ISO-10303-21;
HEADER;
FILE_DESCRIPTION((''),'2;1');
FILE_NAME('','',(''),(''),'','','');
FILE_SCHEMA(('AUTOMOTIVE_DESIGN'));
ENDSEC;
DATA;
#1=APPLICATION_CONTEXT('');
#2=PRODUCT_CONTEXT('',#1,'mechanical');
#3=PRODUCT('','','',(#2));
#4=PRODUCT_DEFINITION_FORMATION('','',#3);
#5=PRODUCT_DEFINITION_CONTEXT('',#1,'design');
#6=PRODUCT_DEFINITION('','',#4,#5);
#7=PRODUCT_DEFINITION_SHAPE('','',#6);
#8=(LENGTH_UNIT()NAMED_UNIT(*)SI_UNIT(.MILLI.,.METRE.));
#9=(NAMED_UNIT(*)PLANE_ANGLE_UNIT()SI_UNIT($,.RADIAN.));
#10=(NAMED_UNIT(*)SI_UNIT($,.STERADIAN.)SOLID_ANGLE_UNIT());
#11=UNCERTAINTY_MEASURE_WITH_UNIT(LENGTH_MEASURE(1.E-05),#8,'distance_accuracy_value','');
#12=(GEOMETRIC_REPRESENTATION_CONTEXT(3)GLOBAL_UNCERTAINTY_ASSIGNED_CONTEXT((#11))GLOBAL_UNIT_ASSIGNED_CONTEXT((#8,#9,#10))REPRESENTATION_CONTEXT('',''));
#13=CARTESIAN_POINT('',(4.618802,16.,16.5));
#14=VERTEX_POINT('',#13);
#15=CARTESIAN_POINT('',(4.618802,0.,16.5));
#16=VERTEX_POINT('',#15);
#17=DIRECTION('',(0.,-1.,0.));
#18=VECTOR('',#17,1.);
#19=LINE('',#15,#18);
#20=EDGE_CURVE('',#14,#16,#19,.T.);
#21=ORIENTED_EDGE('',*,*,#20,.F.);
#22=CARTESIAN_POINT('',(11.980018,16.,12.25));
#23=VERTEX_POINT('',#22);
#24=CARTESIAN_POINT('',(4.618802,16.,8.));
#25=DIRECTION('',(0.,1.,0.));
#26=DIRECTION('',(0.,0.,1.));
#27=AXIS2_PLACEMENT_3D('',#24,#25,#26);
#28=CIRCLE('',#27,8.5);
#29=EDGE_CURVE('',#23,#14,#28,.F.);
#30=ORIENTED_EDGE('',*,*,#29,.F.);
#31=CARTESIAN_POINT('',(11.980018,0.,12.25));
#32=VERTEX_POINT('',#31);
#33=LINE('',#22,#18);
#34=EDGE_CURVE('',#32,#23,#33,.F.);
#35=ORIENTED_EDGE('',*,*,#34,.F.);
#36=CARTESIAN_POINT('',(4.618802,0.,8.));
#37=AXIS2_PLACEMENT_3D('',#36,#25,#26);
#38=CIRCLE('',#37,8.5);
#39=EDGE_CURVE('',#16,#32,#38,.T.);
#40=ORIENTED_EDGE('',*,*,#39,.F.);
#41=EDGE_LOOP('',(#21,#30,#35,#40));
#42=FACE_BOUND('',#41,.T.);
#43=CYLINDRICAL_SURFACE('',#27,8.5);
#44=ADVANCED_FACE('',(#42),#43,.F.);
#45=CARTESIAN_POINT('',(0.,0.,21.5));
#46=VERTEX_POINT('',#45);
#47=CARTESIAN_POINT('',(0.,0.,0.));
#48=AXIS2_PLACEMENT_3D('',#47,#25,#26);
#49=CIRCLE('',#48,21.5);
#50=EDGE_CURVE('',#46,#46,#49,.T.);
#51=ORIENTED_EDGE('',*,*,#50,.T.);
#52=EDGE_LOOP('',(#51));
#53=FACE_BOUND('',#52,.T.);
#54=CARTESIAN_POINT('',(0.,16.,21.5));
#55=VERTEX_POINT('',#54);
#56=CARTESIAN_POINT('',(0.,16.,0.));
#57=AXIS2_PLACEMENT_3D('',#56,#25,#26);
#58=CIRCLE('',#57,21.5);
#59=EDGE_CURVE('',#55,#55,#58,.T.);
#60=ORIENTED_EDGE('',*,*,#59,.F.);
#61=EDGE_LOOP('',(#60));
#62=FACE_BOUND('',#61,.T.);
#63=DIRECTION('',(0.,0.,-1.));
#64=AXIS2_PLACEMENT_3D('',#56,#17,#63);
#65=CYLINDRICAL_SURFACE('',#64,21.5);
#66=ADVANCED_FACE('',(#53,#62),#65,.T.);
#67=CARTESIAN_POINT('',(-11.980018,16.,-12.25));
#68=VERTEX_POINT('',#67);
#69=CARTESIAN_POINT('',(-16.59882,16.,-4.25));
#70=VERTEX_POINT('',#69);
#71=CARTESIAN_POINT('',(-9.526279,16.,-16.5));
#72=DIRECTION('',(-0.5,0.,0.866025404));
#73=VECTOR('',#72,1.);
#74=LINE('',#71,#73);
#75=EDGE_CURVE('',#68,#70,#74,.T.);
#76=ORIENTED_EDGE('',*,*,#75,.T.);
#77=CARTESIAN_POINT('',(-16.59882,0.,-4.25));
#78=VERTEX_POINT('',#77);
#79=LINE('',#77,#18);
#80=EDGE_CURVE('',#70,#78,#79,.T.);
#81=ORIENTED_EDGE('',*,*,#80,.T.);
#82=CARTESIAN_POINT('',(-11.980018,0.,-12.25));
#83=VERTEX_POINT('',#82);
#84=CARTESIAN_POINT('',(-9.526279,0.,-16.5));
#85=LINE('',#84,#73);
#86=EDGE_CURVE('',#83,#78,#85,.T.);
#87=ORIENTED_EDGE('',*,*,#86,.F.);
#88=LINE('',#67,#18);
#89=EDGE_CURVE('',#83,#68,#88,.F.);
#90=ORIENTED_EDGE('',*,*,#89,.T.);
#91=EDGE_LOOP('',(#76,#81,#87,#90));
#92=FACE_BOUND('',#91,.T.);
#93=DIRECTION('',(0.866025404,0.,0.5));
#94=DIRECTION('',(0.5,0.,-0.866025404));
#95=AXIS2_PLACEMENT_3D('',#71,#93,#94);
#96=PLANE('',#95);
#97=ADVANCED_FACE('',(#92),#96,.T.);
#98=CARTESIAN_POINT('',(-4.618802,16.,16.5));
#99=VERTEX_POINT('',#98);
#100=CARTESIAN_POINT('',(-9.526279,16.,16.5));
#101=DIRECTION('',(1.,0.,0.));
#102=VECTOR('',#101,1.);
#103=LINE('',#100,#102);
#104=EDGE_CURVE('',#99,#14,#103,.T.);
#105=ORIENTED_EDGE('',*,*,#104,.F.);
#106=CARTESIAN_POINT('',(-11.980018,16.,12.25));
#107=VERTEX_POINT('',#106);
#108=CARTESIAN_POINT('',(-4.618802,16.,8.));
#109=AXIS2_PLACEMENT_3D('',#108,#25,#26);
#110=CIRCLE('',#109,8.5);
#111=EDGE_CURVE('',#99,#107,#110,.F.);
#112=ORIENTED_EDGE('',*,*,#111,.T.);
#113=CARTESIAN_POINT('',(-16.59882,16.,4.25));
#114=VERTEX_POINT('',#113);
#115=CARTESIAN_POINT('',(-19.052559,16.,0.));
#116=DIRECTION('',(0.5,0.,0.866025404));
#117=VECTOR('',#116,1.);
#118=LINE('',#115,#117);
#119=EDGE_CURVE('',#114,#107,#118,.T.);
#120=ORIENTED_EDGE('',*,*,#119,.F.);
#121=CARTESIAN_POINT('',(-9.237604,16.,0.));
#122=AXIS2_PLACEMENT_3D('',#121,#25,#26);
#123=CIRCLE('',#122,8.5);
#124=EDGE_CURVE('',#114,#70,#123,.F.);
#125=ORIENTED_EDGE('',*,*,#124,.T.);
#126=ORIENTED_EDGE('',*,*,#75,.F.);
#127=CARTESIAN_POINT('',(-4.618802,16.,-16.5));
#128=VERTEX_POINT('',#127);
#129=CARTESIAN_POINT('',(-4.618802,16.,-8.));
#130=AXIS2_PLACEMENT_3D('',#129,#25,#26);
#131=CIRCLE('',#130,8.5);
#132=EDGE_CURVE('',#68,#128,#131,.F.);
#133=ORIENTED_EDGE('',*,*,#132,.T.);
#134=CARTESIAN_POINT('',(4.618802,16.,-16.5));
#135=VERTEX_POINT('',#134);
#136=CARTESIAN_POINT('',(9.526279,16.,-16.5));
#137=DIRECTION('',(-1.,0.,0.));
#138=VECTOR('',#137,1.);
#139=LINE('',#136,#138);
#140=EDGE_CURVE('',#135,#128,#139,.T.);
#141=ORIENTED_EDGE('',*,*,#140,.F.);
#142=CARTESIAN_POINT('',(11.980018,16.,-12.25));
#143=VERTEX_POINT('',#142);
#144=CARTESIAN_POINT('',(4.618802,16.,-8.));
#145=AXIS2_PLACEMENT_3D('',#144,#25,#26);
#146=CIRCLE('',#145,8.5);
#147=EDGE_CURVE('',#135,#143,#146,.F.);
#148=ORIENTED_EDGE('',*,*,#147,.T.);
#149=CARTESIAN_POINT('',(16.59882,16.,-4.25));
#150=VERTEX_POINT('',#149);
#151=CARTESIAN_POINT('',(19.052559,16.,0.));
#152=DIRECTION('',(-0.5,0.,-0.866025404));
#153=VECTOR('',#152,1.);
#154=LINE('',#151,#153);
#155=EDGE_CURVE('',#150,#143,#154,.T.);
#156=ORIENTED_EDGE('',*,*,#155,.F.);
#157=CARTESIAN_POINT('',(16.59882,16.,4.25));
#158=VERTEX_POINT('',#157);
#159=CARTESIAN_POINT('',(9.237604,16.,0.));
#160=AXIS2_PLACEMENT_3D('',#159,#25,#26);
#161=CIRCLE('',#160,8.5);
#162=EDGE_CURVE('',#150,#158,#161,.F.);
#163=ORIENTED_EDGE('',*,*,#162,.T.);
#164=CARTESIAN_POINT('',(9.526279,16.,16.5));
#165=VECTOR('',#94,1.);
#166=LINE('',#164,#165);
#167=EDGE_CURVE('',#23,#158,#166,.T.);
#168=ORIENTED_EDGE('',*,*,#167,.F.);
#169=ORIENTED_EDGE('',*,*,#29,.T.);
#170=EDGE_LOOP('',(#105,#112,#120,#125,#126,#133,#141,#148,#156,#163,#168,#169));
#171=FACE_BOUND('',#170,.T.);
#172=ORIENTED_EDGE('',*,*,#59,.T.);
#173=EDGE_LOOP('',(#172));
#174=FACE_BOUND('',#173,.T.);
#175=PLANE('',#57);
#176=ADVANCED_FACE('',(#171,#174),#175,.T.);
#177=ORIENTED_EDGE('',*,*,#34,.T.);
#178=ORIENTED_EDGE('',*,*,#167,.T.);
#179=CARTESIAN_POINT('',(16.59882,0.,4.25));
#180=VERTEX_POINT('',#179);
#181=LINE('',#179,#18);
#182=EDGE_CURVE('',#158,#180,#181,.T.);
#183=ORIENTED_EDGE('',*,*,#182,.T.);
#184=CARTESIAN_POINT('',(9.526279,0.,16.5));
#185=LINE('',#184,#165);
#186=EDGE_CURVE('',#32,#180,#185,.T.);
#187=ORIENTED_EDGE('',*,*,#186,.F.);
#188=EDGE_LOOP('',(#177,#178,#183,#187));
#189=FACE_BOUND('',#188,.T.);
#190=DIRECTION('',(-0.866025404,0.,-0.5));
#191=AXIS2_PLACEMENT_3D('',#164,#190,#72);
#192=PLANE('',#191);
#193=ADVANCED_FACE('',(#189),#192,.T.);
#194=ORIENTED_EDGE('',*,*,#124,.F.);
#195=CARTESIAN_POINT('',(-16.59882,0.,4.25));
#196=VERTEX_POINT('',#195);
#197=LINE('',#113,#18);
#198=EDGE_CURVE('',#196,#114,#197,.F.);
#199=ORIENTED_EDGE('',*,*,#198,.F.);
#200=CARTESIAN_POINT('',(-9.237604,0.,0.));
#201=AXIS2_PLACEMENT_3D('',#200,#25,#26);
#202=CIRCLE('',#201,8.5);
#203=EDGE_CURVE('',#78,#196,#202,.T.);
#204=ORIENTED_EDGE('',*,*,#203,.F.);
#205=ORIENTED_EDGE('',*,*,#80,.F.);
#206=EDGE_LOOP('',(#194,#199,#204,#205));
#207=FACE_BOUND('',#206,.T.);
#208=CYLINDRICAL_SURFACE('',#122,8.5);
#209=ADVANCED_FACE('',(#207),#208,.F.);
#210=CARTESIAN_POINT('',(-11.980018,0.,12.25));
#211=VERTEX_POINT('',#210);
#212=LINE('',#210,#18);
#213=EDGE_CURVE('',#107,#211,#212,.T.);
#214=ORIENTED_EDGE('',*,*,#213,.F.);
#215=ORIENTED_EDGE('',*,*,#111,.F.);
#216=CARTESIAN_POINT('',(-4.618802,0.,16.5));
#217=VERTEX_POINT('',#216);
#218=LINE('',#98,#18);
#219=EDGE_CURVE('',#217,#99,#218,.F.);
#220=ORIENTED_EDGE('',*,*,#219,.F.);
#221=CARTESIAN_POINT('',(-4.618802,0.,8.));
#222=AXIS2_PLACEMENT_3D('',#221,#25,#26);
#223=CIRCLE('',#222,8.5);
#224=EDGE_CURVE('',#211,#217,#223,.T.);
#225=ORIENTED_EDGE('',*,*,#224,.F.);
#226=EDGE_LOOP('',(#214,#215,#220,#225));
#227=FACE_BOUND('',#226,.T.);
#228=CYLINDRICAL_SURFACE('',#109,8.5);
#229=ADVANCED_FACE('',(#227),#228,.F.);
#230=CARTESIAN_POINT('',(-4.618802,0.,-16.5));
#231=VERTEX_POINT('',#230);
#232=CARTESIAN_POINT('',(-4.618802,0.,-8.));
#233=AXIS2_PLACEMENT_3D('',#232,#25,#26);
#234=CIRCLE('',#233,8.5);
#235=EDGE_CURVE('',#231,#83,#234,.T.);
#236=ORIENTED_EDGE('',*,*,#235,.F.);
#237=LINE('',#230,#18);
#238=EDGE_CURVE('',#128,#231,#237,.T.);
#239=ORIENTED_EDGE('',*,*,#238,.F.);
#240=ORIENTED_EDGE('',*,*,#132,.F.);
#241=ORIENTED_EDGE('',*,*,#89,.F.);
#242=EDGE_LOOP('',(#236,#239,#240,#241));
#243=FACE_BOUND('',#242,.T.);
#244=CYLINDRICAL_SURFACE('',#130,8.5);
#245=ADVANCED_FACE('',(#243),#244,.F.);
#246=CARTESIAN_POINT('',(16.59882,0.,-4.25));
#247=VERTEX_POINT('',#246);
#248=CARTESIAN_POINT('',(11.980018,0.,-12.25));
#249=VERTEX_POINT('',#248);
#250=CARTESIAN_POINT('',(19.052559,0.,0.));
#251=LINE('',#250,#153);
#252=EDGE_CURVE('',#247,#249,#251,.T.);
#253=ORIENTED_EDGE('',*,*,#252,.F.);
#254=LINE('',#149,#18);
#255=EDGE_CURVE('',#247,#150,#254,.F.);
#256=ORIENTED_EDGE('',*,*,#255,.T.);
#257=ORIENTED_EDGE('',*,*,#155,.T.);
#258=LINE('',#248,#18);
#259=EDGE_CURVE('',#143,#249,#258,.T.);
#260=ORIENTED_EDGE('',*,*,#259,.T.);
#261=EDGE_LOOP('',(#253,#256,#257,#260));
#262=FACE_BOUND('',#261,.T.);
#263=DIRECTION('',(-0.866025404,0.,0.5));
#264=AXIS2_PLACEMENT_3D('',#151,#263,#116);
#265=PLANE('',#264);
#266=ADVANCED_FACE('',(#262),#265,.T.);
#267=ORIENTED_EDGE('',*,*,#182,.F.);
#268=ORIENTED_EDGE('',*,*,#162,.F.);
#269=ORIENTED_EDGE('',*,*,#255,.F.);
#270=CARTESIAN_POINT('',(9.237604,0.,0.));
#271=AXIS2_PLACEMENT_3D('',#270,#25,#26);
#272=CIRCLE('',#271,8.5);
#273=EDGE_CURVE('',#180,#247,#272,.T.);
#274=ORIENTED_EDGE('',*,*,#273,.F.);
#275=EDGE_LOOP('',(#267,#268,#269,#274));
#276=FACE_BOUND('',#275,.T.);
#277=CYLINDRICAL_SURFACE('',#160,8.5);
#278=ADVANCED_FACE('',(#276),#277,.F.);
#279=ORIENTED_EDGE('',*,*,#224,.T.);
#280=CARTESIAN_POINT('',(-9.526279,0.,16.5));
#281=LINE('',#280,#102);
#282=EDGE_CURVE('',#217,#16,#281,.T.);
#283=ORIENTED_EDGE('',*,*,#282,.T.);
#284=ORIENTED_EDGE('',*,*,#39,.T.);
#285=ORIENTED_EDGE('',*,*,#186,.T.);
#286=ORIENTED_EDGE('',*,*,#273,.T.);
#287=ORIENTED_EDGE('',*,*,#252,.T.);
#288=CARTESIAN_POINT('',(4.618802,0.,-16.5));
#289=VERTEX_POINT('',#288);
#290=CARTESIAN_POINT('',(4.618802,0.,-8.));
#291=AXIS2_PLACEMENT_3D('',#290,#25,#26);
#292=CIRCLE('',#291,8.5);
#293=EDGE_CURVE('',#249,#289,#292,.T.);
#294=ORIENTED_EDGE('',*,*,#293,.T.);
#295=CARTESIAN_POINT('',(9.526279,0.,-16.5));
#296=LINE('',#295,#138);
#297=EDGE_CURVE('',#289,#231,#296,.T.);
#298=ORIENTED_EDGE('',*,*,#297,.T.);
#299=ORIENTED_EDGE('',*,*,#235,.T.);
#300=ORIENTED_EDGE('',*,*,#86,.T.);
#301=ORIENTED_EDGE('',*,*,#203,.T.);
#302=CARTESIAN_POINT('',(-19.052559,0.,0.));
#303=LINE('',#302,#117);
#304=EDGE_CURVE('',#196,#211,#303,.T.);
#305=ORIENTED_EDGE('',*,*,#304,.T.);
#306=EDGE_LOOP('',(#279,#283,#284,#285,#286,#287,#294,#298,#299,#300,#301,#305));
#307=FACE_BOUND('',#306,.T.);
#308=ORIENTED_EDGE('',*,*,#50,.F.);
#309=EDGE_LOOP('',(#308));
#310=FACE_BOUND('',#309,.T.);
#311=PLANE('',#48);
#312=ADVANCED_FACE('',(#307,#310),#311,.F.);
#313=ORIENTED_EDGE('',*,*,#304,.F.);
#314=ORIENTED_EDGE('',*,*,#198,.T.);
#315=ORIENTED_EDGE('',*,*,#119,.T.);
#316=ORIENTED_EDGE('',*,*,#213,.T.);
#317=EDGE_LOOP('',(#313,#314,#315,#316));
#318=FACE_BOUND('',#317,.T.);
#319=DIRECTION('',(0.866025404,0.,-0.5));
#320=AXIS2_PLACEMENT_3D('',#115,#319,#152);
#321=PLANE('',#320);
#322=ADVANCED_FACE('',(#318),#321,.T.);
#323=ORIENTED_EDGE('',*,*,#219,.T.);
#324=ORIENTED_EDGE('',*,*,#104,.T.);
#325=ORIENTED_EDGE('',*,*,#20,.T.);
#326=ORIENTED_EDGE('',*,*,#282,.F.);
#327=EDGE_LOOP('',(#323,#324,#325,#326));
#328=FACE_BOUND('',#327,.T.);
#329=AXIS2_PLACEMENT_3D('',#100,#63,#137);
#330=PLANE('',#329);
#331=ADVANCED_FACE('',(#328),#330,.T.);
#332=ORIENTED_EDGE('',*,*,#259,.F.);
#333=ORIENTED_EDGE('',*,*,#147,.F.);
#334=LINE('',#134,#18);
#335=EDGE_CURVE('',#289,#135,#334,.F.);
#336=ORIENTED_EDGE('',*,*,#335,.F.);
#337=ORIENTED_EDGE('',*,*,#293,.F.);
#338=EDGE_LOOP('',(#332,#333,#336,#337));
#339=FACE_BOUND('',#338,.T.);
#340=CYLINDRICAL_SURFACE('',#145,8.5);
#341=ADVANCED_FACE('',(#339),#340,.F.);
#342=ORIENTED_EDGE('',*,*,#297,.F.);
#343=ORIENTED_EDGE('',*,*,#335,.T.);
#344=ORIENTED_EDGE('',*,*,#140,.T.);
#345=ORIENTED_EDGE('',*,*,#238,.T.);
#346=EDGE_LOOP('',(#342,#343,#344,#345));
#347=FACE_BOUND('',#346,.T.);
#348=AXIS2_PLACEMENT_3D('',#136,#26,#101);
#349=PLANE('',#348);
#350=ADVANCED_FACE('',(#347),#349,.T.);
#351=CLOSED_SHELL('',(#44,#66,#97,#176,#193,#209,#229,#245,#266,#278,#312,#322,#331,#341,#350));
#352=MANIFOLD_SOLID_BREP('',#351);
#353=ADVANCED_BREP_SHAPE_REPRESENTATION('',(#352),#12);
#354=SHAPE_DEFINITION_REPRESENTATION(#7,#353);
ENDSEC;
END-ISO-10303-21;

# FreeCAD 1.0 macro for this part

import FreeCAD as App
import Part
import Sketcher
from FreeCAD import Vector
Q = App.Units.Quantity


def edges_at(feature, points):
    """Names of the edges that pass closest to the given points."""
    edges = feature.Shape.Edges
    near = lambda p: min(range(len(edges)), key=lambda i: edges[i].distToShape(Part.Vertex(*p))[0])
    return sorted({f"Edge{near(p) + 1}" for p in points})

doc = App.newDocument("Part")
body = doc.addObject("PartDesign::Body", "Body")

sketch1 = body.newObject("Sketcher::SketchObject", "Sketch")
sketch1.AttachmentSupport = (doc.getObject("XZ_Plane"), [""])
sketch1.MapMode = "FlatFace"
sketch1.addGeometry([
    Part.Circle(Vector(0, 0, 0), Vector(0, 0, 1), 22),
    Part.LineSegment(Vector(19, 0, 0), Vector(10, 16, 0)),
    Part.LineSegment(Vector(10, 16, 0), Vector(-10, 16, 0)),
    Part.LineSegment(Vector(-10, 16, 0), Vector(-19, 0, 0)),
    Part.LineSegment(Vector(-19, 0, 0), Vector(-10, -16, 0)),
    Part.LineSegment(Vector(-10, -16, 0), Vector(10, -16, 0)),
    Part.LineSegment(Vector(10, -16, 0), Vector(19, 0, 0)),
], False)
sketch1.addConstraint([
    Sketcher.Constraint("Coincident", 1, 2, 2, 1),
    Sketcher.Constraint("Coincident", 2, 2, 3, 1),
    Sketcher.Constraint("Coincident", 3, 2, 4, 1),
    Sketcher.Constraint("Coincident", 4, 2, 5, 1),
    Sketcher.Constraint("Coincident", 5, 2, 6, 1),
    Sketcher.Constraint("Coincident", 6, 2, 1, 1),
    Sketcher.Constraint("Horizontal", 2),
    Sketcher.Constraint("Horizontal", 5),
    Sketcher.Constraint("Coincident", 0, 3, -1, 1),
    Sketcher.Constraint("Symmetric", 1, 2, 4, 2, -1, 1),
    Sketcher.Constraint("Symmetric", 3, 2, 6, 2, -1, 1),
    Sketcher.Constraint("PointOnObject", 3, 2, -1),
    Sketcher.Constraint("Parallel", 3, 6),
    Sketcher.Constraint("Vertical", 2, 2, 4, 2),
    Sketcher.Constraint("Diameter", 0, Q("43 mm")),
    Sketcher.Constraint("Angle", 1, Q("120 deg")),
    Sketcher.Constraint("DistanceY", 4, 2, 2, 2, Q("33 mm")),
    Sketcher.Constraint("DistanceX", 2, 2, 2, 1, Q("19.052559 mm")),
])
pad1 = body.newObject("PartDesign::Pad", "Pad")
pad1.Profile = sketch1
pad1.Length = 16
pad1.Reversed = True
doc.recompute()

fillet = body.newObject("PartDesign::Fillet", "Fillet")
fillet.Base = (pad1, edges_at(pad1, [
    (9.526, 8, 16.5),
    (19.053, 8, 0),
    (9.526, 8, -16.5),
    (-9.526, 8, -16.5),
    (-19.053, 8, 0),
    (-9.526, 8, 16.5),
]))
fillet.Radius = 8.5

doc.recompute()
